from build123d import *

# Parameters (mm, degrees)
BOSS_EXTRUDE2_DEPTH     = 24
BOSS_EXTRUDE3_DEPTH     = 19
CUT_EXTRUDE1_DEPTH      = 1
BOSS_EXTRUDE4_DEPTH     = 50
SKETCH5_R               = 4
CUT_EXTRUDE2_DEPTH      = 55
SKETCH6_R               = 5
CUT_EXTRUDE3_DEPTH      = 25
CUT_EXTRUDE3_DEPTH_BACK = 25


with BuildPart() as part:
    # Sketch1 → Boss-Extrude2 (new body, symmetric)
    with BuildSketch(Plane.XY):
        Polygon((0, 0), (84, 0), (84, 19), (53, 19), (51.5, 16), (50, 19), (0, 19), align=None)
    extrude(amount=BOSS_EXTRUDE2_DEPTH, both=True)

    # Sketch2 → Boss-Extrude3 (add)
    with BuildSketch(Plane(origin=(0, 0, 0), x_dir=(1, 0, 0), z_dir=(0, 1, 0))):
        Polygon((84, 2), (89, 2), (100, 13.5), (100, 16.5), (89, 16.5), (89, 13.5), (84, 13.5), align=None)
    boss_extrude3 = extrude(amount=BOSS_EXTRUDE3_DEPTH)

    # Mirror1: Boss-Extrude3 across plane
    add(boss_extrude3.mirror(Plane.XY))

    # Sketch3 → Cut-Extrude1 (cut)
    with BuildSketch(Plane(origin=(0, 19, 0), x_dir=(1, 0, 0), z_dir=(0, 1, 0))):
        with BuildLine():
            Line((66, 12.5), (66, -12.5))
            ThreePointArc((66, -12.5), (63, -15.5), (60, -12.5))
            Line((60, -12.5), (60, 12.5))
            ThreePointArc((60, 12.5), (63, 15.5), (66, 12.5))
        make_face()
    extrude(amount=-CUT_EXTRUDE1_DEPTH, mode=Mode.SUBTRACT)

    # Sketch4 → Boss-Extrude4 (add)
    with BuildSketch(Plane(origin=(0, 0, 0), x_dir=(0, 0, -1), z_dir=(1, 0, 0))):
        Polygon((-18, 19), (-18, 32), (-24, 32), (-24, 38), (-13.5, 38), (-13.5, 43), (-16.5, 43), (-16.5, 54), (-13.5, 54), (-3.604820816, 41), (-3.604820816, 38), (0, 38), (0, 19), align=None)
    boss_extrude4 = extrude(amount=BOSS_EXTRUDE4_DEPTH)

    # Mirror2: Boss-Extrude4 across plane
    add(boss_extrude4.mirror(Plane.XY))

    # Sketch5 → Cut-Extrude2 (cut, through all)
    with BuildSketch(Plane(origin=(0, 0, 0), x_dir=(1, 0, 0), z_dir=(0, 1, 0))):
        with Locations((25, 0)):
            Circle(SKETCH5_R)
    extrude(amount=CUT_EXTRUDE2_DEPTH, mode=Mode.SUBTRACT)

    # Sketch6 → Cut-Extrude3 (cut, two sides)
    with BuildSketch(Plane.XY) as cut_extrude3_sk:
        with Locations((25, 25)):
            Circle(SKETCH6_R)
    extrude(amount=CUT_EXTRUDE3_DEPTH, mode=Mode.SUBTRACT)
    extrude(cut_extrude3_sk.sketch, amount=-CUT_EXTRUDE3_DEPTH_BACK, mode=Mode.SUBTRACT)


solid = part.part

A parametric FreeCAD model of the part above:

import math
import FreeCAD as App
import Part
import Sketcher
from FreeCAD import Vector

doc = App.newDocument("Part")
body = doc.addObject("PartDesign::Body", "Body")

# Sketch on XY plane
sketch1 = body.newObject("Sketcher::SketchObject", "Sketch")
sketch1.AttachmentSupport = (doc.getObject("XY_Plane"), [""])
sketch1.MapMode = "FlatFace"
sketch1.addGeometry([
    Part.LineSegment(Vector(0, 0, 0), Vector(84, 0, 0)),  # 0
    Part.LineSegment(Vector(84, 0, 0), Vector(84, 19, 0)),  # 1
    Part.LineSegment(Vector(84, 19, 0), Vector(53, 19, 0)),  # 2
    Part.LineSegment(Vector(53, 19, 0), Vector(51.5, 16, 0)),  # 3
    Part.LineSegment(Vector(51.5, 16, 0), Vector(50, 19, 0)),  # 4
    Part.LineSegment(Vector(50, 19, 0), Vector(0, 19, 0)),  # 5
    Part.LineSegment(Vector(0, 19, 0), Vector(0, 0, 0)),  # 6
], False)
sketch1.addConstraint([
    Sketcher.Constraint("Coincident", 0, 2, 1, 1),
    Sketcher.Constraint("Coincident", 1, 2, 2, 1),
    Sketcher.Constraint("Coincident", 2, 2, 3, 1),
    Sketcher.Constraint("Coincident", 3, 2, 4, 1),
    Sketcher.Constraint("Coincident", 4, 2, 5, 1),
    Sketcher.Constraint("Coincident", 5, 2, 6, 1),
    Sketcher.Constraint("Coincident", 6, 2, 0, 1),
    Sketcher.Constraint("Horizontal", 0),
    Sketcher.Constraint("Vertical", 1),
    Sketcher.Constraint("Horizontal", 2),
    Sketcher.Constraint("Horizontal", 5),
    Sketcher.Constraint("Vertical", 6),
    Sketcher.Constraint("Coincident", 6, 2, -1, 1),
    Sketcher.Constraint("Horizontal", 2, 2, 4, 2),
    Sketcher.Constraint("Equal", 3, 4),
    Sketcher.Constraint("DistanceX", 0, 1, 0, 2, 84.0),
    Sketcher.Constraint("DistanceX", 2, 2, 2, 1, 31.0),
    Sketcher.Constraint("DistanceX", 5, 2, 5, 1, 50.0),
    Sketcher.Constraint("DistanceY", 1, 1, 1, 2, 19.0),
    Sketcher.Constraint("DistanceY", -1, 1, 3, 2, 16.0),
])
pad1 = body.newObject("PartDesign::Pad", "Pad")
pad1.Profile = sketch1
pad1.Length = 48
pad1.Midplane = True

# Sketch on XZ plane
sketch2 = body.newObject("Sketcher::SketchObject", "Sketch001")
sketch2.AttachmentSupport = (doc.getObject("XZ_Plane"), [""])
sketch2.MapMode = "FlatFace"
sketch2.addGeometry([
    Part.LineSegment(Vector(84, -2, 0), Vector(89, -2, 0)),  # 0
    Part.LineSegment(Vector(89, -2, 0), Vector(100, -13.5, 0)),  # 1
    Part.LineSegment(Vector(100, -13.5, 0), Vector(100, -16.5, 0)),  # 2
    Part.LineSegment(Vector(100, -16.5, 0), Vector(89, -16.5, 0)),  # 3
    Part.LineSegment(Vector(89, -16.5, 0), Vector(89, -13.5, 0)),  # 4
    Part.LineSegment(Vector(89, -13.5, 0), Vector(84, -13.5, 0)),  # 5
    Part.LineSegment(Vector(84, -13.5, 0), Vector(84, -2, 0)),  # 6
], False)
sketch2.addConstraint([
    Sketcher.Constraint("Coincident", 0, 2, 1, 1),
    Sketcher.Constraint("Coincident", 1, 2, 2, 1),
    Sketcher.Constraint("Coincident", 2, 2, 3, 1),
    Sketcher.Constraint("Coincident", 3, 2, 4, 1),
    Sketcher.Constraint("Coincident", 4, 2, 5, 1),
    Sketcher.Constraint("Coincident", 5, 2, 6, 1),
    Sketcher.Constraint("Coincident", 6, 2, 0, 1),
    Sketcher.Constraint("Horizontal", 0),
    Sketcher.Constraint("Vertical", 2),
    Sketcher.Constraint("Horizontal", 3),
    Sketcher.Constraint("Vertical", 4),
    Sketcher.Constraint("Horizontal", 5),
    Sketcher.Constraint("Vertical", 6),
    Sketcher.Constraint("Horizontal", 1, 2, 4, 2),
    Sketcher.Constraint("Vertical", 0, 2, 3, 2),
    Sketcher.Constraint("DistanceX", 0, 1, 0, 2, 5.0),
    Sketcher.Constraint("DistanceX", 3, 2, 3, 1, 11.0),
    Sketcher.Constraint("DistanceY", 2, 2, 2, 1, 3.0),
    Sketcher.Constraint("DistanceY", 6, 1, 6, 2, 11.5),
    Sketcher.Constraint("DistanceX", -1, 1, 0, 2, 89.0),
    Sketcher.Constraint("DistanceY", 0, 2, -1, 1, 2.0),
])
pad2 = body.newObject("PartDesign::Pad", "Pad001")
pad2.Profile = sketch2
pad2.Length = 19
pad2.Reversed = True
doc.recompute()

mirrored = body.newObject("PartDesign::Mirrored", "Mirrored")
mirrored.Originals = [pad2]
mirrored.MirrorPlane = (doc.getObject("XY_Plane"), [""])
body.Tip = mirrored

# Sketch on XZ plane
sketch3 = body.newObject("Sketcher::SketchObject", "Sketch002")
sketch3.AttachmentSupport = (doc.getObject("XZ_Plane"), [""])
sketch3.MapMode = "FlatFace"
sketch3.AttachmentOffset = App.Placement(Vector(0, 0, -19), App.Rotation())
sketch3.addGeometry([
    Part.LineSegment(Vector(66, 12.5, 0), Vector(66, -12.5, 0)),
    Part.ArcOfCircle(Part.Circle(Vector(63, -12.5, 0), Vector(0, 0, 1), 3), math.radians(180), math.radians(360)),
    Part.LineSegment(Vector(60, -12.5, 0), Vector(60, 12.5, 0)),
    Part.ArcOfCircle(Part.Circle(Vector(63, 12.5, 0), Vector(0, 0, 1), 3), math.radians(0), math.radians(180)),
], False)
sketch3.addConstraint([
    Sketcher.Constraint("Tangent", 0, 2, 1, 2),
    Sketcher.Constraint("Tangent", 1, 1, 2, 1),
    Sketcher.Constraint("Tangent", 2, 2, 3, 2),
    Sketcher.Constraint("Tangent", 3, 1, 0, 1),
    Sketcher.Constraint("Vertical", 0),
    Sketcher.Constraint("Vertical", 2),
    Sketcher.Constraint("Radius", 1, 3.0),
    Sketcher.Constraint("DistanceY", 0, 2, 0, 1, 25.0),
    Sketcher.Constraint("DistanceX", -1, 1, 1, 3, 63.0),
    Sketcher.Constraint("DistanceY", 1, 3, -1, 1, 12.5),
])
pocket1 = body.newObject("PartDesign::Pocket", "Pocket")
pocket1.Profile = sketch3
pocket1.Length = 1
pocket1.Reversed = True

# Sketch on YZ plane
sketch4 = body.newObject("Sketcher::SketchObject", "Sketch003")
sketch4.AttachmentSupport = (doc.getObject("YZ_Plane"), [""])
sketch4.MapMode = "FlatFace"
sketch4.addGeometry([
    Part.LineSegment(Vector(32, 18, 0), Vector(19, 18, 0)),  # 0
    Part.LineSegment(Vector(19, 18, 0), Vector(19, 0, 0)),  # 1
    Part.LineSegment(Vector(19, 0, 0), Vector(38, 0, 0)),  # 2
    Part.LineSegment(Vector(38, 0, 0), Vector(38, 3.6, 0)),  # 3
    Part.LineSegment(Vector(38, 3.6, 0), Vector(41, 3.6, 0)),  # 4
    Part.LineSegment(Vector(41, 3.6, 0), Vector(54, 13.5, 0)),  # 5
    Part.LineSegment(Vector(54, 13.5, 0), Vector(54, 16.5, 0)),  # 6
    Part.LineSegment(Vector(54, 16.5, 0), Vector(43, 16.5, 0)),  # 7
    Part.LineSegment(Vector(43, 16.5, 0), Vector(43, 13.5, 0)),  # 8
    Part.LineSegment(Vector(43, 13.5, 0), Vector(38, 13.5, 0)),  # 9
    Part.LineSegment(Vector(38, 13.5, 0), Vector(38, 24, 0)),  # 10
    Part.LineSegment(Vector(38, 24, 0), Vector(32, 24, 0)),  # 11
    Part.LineSegment(Vector(32, 24, 0), Vector(32, 18, 0)),  # 12
], False)
sketch4.addConstraint([
    Sketcher.Constraint("Coincident", 0, 2, 1, 1),
    Sketcher.Constraint("Coincident", 1, 2, 2, 1),
    Sketcher.Constraint("Coincident", 2, 2, 3, 1),
    Sketcher.Constraint("Coincident", 3, 2, 4, 1),
    Sketcher.Constraint("Coincident", 4, 2, 5, 1),
    Sketcher.Constraint("Coincident", 5, 2, 6, 1),
    Sketcher.Constraint("Coincident", 6, 2, 7, 1),
    Sketcher.Constraint("Coincident", 7, 2, 8, 1),
    Sketcher.Constraint("Coincident", 8, 2, 9, 1),
    Sketcher.Constraint("Coincident", 9, 2, 10, 1),
    Sketcher.Constraint("Coincident", 10, 2, 11, 1),
    Sketcher.Constraint("Coincident", 11, 2, 12, 1),
    Sketcher.Constraint("Coincident", 12, 2, 0, 1),
    Sketcher.Constraint("Horizontal", 0),
    Sketcher.Constraint("Vertical", 1),
    Sketcher.Constraint("Horizontal", 2),
    Sketcher.Constraint("Vertical", 3),
    Sketcher.Constraint("Horizontal", 4),
    Sketcher.Constraint("Vertical", 6),
    Sketcher.Constraint("Horizontal", 7),
    Sketcher.Constraint("Vertical", 8),
    Sketcher.Constraint("Horizontal", 9),
    Sketcher.Constraint("Vertical", 10),
    Sketcher.Constraint("Horizontal", 11),
    Sketcher.Constraint("Vertical", 12),
    Sketcher.Constraint("PointOnObject", 1, 2, -1),
    Sketcher.Constraint("Horizontal", 5, 2, 8, 2),
    Sketcher.Constraint("Vertical", 3, 2, 9, 2),
    Sketcher.Constraint("Equal", 4, 6),
    Sketcher.Constraint("Equal", 11, 12),
    Sketcher.Constraint("DistanceX", 0, 2, 0, 1, 13.0),
    Sketcher.Constraint("DistanceX", 2, 1, 2, 2, 19.0),
    Sketcher.Constraint("DistanceX", 4, 1, 4, 2, 3.0),
    Sketcher.Constraint("DistanceX", 7, 2, 7, 1, 11.0),
    Sketcher.Constraint("DistanceX", 9, 2, 9, 1, 5.0),
    Sketcher.Constraint("DistanceY", 1, 2, 1, 1, 18.0),
    Sketcher.Constraint("DistanceY", 10, 1, 10, 2, 10.5),
    Sketcher.Constraint("DistanceX", -1, 1, 0, 2, 19.0),
    Sketcher.Constraint("DistanceY", 3, 1, 3, 2, 3.604821),
])
pad3 = body.newObject("PartDesign::Pad", "Pad002")
pad3.Profile = sketch4
pad3.Length = 50
doc.recompute()

mirrored2 = body.newObject("PartDesign::Mirrored", "Mirrored001")
mirrored2.Originals = [pad3]
mirrored2.MirrorPlane = (doc.getObject("XY_Plane"), [""])
body.Tip = mirrored2

# Sketch on XZ plane
sketch5 = body.newObject("Sketcher::SketchObject", "Sketch004")
sketch5.AttachmentSupport = (doc.getObject("XZ_Plane"), [""])
sketch5.MapMode = "FlatFace"
sketch5.addGeometry(Part.Circle(Vector(25, 0, 0), Vector(0, 0, 1), 4), False)
sketch5.addConstraint([
    Sketcher.Constraint("PointOnObject", 0, 3, -1),
    Sketcher.Constraint("Diameter", 0, 8.0),
    Sketcher.Constraint("DistanceX", -1, 1, 0, 3, 25.0),
])
pocket2 = body.newObject("PartDesign::Pocket", "Pocket001")
pocket2.Profile = sketch5
pocket2.Type = "ThroughAll"

# Sketch on XY plane
sketch6 = body.newObject("Sketcher::SketchObject", "Sketch005")
sketch6.AttachmentSupport = (doc.getObject("XY_Plane"), [""])
sketch6.MapMode = "FlatFace"
sketch6.addGeometry(Part.Circle(Vector(25, 25, 0), Vector(0, 0, 1), 5), False)
sketch6.addConstraint([
    Sketcher.Constraint("Diameter", 0, 10.0),
    Sketcher.Constraint("DistanceX", -1, 1, 0, 3, 25.0),
    Sketcher.Constraint("DistanceY", -1, 1, 0, 3, 25.0),
])
pocket3 = body.newObject("PartDesign::Pocket", "Pocket002")
pocket3.Profile = sketch6
pocket3.Type = "ThroughAll"
pocket3.Midplane = True

doc.recompute()
